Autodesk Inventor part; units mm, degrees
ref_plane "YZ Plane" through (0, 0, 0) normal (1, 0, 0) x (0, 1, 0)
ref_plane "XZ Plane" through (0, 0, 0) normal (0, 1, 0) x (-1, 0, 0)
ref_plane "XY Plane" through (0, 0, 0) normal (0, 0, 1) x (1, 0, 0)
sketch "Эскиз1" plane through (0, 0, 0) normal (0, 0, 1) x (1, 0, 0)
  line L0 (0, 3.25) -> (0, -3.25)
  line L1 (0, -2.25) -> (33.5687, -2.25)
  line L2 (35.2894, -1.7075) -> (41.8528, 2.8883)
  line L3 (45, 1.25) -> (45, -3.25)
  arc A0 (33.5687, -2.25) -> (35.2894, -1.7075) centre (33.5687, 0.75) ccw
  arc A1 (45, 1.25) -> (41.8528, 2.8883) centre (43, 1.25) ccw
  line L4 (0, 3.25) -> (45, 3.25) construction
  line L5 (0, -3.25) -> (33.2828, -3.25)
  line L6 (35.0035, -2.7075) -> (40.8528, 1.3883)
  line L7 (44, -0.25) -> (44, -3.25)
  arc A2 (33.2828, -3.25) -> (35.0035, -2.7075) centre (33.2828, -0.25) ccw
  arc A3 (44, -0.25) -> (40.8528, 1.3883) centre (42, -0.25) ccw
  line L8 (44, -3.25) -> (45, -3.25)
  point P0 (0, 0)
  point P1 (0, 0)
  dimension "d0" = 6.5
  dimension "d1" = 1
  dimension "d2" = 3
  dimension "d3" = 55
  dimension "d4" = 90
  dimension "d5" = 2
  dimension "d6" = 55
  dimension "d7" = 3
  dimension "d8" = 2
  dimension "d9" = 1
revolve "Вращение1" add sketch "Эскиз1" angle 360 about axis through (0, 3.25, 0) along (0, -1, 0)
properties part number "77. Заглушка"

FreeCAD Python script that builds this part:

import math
import FreeCAD as App
import Part
import Sketcher
from FreeCAD import Vector
Q = App.Units.Quantity

doc = App.newDocument("Part")
params = doc.addObject("Spreadsheet::Sheet", "Params")
for row, (alias, value) in enumerate([
    ("sketch1_radius", "3 mm"),
    ("sketch1_radius2", "2 mm"),
    ("sketch1_width", "1 mm"),
    ("sketch1_height", "4.5 mm"),
    ("revolution_angle", "360 deg"),
], start=1):
    params.set(f"A{row}", alias)
    params.set(f"B{row}", "=" + value)
    params.setAlias(f"B{row}", alias)

body = doc.addObject("PartDesign::Body", "Body")

sketch1 = doc.addObject("Sketcher::SketchObject", "Sketch")
body.addObject(sketch1)
sketch1.AttachmentSupport = (doc.XY_Plane, [""])
sketch1.MapMode = "FlatFace"
sketch1.addGeometry([
    Part.LineSegment(Vector(33.6, -2.2, 0), Vector(0, -2.2, 0)),
    Part.LineSegment(Vector(0, -2.2, 0), Vector(0, -3.2, 0)),
    Part.LineSegment(Vector(0, -3.2, 0), Vector(33.3, -3.2, 0)),
    Part.ArcOfCircle(Part.Circle(Vector(33.3, -0.2, 0), Vector(0, 0, 1), 3), math.radians(-90), math.radians(-55)),
    Part.LineSegment(Vector(35, -2.7, 0), Vector(40.9, 1.4, 0)),
    Part.ArcOfCircle(Part.Circle(Vector(42, -0.2, 0), Vector(0, 0, 1), 2), math.radians(0), math.radians(125)),
    Part.LineSegment(Vector(44, -0.2, 0), Vector(44, -3.2, 0)),
    Part.LineSegment(Vector(44, -3.2, 0), Vector(45, -3.2, 0)),
    Part.LineSegment(Vector(45, -3.2, 0), Vector(45, 1.2, 0)),
    Part.ArcOfCircle(Part.Circle(Vector(43, 1.2, 0), Vector(0, 0, 1), 2), math.radians(0), math.radians(125)),
    Part.LineSegment(Vector(41.9, 2.9, 0), Vector(35.3, -1.7, 0)),
    Part.ArcOfCircle(Part.Circle(Vector(33.6, 0.8, 0), Vector(0, 0, 1), 3), math.radians(-90), math.radians(-55)),
], False)
sketch1.addConstraint([
    Sketcher.Constraint("Coincident", 0, 2, 1, 1),
    Sketcher.Constraint("Coincident", 1, 2, 2, 1),
    Sketcher.Constraint("Tangent", 2, 2, 3, 1),
    Sketcher.Constraint("Tangent", 3, 2, 4, 1),
    Sketcher.Constraint("Tangent", 4, 2, 5, 2),
    Sketcher.Constraint("Tangent", 5, 1, 6, 1),
    Sketcher.Constraint("Coincident", 6, 2, 7, 1),
    Sketcher.Constraint("Coincident", 7, 2, 8, 1),
    Sketcher.Constraint("Tangent", 8, 2, 9, 1),
    Sketcher.Constraint("Tangent", 9, 2, 10, 1),
    Sketcher.Constraint("Tangent", 10, 2, 11, 2),
    Sketcher.Constraint("Tangent", 11, 1, 0, 1),
    Sketcher.Constraint("Horizontal", 0),
    Sketcher.Constraint("Vertical", 1),
    Sketcher.Constraint("Horizontal", 2),
    Sketcher.Constraint("Vertical", 6),
    Sketcher.Constraint("Horizontal", 7),
    Sketcher.Constraint("Vertical", 8),
    Sketcher.Constraint("Equal", 5, 9),
    Sketcher.Constraint("Equal", 3, 11),
    Sketcher.Constraint("PointOnObject", 0, 2, -2),
    Sketcher.Constraint("Parallel", 4, 10),
    Sketcher.Constraint("Horizontal", 3, 3, 5, 3),
    Sketcher.Constraint("Horizontal", 2, 2, 6, 2),
    Sketcher.Constraint("Equal", 7, 1),
    Sketcher.Constraint("Radius", 3, Q("3 mm")),
    Sketcher.Constraint("Radius", 5, Q("2 mm")),
    Sketcher.Constraint("DistanceX", 7, 1, 7, 2, Q("1 mm")),
    Sketcher.Constraint("Angle", 4, Q("35.0005 deg")),
    Sketcher.Constraint("DistanceY", 8, 1, 8, 2, Q("4.5 mm")),
    Sketcher.Constraint("DistanceX", -1, 1, 5, 3, Q("42 mm")),
    Sketcher.Constraint("DistanceY", 3, 3, -1, 1, Q("0.25 mm")),
])
sketch1.setExpression("Constraints[25]", "Params.sketch1_radius")
sketch1.setExpression("Constraints[26]", "Params.sketch1_radius2")
sketch1.setExpression("Constraints[27]", "Params.sketch1_width")
sketch1.setExpression("Constraints[29]", "Params.sketch1_height")
revolution = doc.addObject("PartDesign::Revolution", "Revolution")
body.addObject(revolution)
revolution.Profile = sketch1
revolution.ReferenceAxis = (sketch1, ["V_Axis"])
revolution.setExpression("Angle", "Params.revolution_angle")

doc.recompute()
